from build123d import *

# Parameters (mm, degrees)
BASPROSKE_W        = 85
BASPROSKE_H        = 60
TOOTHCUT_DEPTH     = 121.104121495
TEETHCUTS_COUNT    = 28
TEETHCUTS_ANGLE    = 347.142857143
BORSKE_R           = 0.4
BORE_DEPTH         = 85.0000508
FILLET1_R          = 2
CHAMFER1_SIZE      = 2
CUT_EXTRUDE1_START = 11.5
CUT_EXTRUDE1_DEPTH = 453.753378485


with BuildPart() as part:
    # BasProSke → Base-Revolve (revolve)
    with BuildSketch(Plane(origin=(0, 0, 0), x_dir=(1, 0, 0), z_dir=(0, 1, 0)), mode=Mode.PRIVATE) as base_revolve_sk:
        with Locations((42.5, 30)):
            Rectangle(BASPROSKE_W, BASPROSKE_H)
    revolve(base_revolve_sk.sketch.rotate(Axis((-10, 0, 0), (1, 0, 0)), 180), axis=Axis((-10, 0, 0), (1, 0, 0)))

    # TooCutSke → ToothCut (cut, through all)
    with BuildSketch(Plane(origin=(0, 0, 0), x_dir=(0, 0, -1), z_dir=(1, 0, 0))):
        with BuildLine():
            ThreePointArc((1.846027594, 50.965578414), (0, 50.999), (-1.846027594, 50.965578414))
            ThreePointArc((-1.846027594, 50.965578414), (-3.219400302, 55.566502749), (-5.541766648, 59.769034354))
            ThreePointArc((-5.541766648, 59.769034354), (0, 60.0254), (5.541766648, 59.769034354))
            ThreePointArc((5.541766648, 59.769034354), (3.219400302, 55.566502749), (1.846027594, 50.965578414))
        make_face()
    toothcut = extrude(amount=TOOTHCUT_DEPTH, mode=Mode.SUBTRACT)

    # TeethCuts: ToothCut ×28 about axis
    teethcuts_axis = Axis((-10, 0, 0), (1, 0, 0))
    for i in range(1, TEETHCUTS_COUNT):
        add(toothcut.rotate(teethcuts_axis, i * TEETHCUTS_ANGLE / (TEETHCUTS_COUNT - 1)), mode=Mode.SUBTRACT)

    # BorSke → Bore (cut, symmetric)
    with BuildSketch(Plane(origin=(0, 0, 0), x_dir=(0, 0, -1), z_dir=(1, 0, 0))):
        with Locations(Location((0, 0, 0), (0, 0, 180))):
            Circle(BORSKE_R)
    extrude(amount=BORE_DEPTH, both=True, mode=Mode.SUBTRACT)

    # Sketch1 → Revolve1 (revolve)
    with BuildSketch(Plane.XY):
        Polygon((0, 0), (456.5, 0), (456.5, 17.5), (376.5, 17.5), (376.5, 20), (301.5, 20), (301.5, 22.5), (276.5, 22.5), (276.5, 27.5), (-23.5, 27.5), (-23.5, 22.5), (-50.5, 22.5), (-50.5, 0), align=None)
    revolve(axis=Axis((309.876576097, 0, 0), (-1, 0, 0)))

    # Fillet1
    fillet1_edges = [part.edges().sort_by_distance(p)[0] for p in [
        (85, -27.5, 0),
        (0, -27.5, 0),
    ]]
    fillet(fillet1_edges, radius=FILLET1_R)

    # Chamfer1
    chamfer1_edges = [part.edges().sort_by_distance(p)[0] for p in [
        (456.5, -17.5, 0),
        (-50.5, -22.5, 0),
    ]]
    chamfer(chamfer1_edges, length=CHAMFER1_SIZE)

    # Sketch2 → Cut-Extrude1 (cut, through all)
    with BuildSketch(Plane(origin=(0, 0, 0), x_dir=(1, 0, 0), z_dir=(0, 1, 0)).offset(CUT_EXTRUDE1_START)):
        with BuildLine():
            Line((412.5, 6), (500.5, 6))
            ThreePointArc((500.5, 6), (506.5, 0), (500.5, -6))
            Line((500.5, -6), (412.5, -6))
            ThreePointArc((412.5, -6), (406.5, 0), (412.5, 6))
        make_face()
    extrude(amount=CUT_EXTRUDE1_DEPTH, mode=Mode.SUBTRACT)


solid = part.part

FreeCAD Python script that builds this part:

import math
import FreeCAD as App
import Part
import Sketcher


def edges_at(feature, points):
    """Names of the edges that pass closest to the given points."""
    edges = feature.Shape.Edges
    near = lambda p: min(range(len(edges)), key=lambda i: edges[i].distToShape(Part.Vertex(*p))[0])
    return sorted({f"Edge{near(p) + 1}" for p in points})

doc = App.newDocument("Part")
body = doc.addObject("PartDesign::Body", "Body")

# Sketch on XZ plane
sketch1 = doc.addObject("Sketcher::SketchObject", "Sketch")
body.addObject(sketch1)
sketch1.AttachmentSupport = (doc.XZ_Plane, [""])
sketch1.MapMode = "FlatFace"
sketch1.addGeometry([
    Part.LineSegment(App.Vector(0, -60, 0), App.Vector(0, 0, 0)),
    Part.LineSegment(App.Vector(0, 0, 0), App.Vector(85, 0, 0)),
    Part.LineSegment(App.Vector(85, 0, 0), App.Vector(85, -60, 0)),
    Part.LineSegment(App.Vector(85, -60, 0), App.Vector(0, -60, 0)),
], False)
sketch1.addConstraint([
    Sketcher.Constraint("Coincident", 0, 2, 1, 1),
    Sketcher.Constraint("Coincident", 1, 2, 2, 1),
    Sketcher.Constraint("Coincident", 2, 2, 3, 1),
    Sketcher.Constraint("Coincident", 3, 2, 0, 1),
    Sketcher.Constraint("Vertical", 0),
    Sketcher.Constraint("Horizontal", 1),
    Sketcher.Constraint("Vertical", 2),
    Sketcher.Constraint("Horizontal", 3),
    Sketcher.Constraint("Coincident", 0, 2, -1, 1),
    Sketcher.Constraint("DistanceX", 1, 1, 1, 2, 85.0),
    Sketcher.Constraint("DistanceY", 0, 1, 0, 2, 60.0),
])
revolution = doc.addObject("PartDesign::Revolution", "Revolution")
body.addObject(revolution)
revolution.Profile = sketch1
revolution.ReferenceAxis = (sketch1, ["H_Axis"])
revolution.Angle = 360

# Sketch on YZ plane
sketch2 = doc.addObject("Sketcher::SketchObject", "Sketch001")
body.addObject(sketch2)
sketch2.AttachmentSupport = (doc.YZ_Plane, [""])
sketch2.MapMode = "FlatFace"
sketch2.addGeometry([
    Part.ArcOfCircle(Part.Circle(App.Vector(0.000001, 0, 0), App.Vector(0, 0, 1), 50.998999), math.radians(-2.074407), math.radians(2.074407)),
    Part.ArcOfCircle(Part.Circle(App.Vector(46.89591, -23.873234, 0), App.Vector(0, 0, 1), 22.4), math.radians(54.921862), math.radians(79.532276)),
    Part.ArcOfCircle(Part.Circle(App.Vector(0, 0, 0), App.Vector(0, 0, 1), 60.0254), math.radians(-5.297302), math.radians(5.297302)),
    Part.ArcOfCircle(Part.Circle(App.Vector(46.89591, 23.873234, 0), App.Vector(0, 0, 1), 22.4), math.radians(-79.532276), math.radians(-54.921862)),
], False)
sketch2.addConstraint([
    Sketcher.Constraint("Coincident", 0, 1, 1, 2),
    Sketcher.Constraint("Coincident", 1, 1, 2, 1),
    Sketcher.Constraint("Coincident", 2, 2, 3, 2),
    Sketcher.Constraint("Coincident", 3, 1, 0, 2),
    Sketcher.Constraint("Coincident", 0, 3, -1, 1),
    Sketcher.Constraint("Coincident", 2, 3, -1, 1),
    Sketcher.Constraint("Equal", 1, 3),
    Sketcher.Constraint("Symmetric", 1, 3, 3, 3, -1),
    Sketcher.Constraint("Radius", 1, 22.4),
    Sketcher.Constraint("Radius", 0, 50.998999),
    Sketcher.Constraint("Radius", 2, 60.0254),
    Sketcher.Constraint("DistanceY", 1, 1, 3, 3, 29.415),
    Sketcher.Constraint("DistanceX", -1, 1, 1, 3, 46.89591),
])
pocket1 = doc.addObject("PartDesign::Pocket", "Pocket")
body.addObject(pocket1)
pocket1.Profile = sketch2
pocket1.Type = "ThroughAll"
pocket1.Reversed = True
doc.recompute()

polarpattern = doc.addObject("PartDesign::PolarPattern", "PolarPattern")
body.addObject(polarpattern)
polarpattern.Originals = [pocket1]
polarpattern.Axis = (doc.X_Axis, [""])
polarpattern.Angle = 360
polarpattern.Occurrences = 28
body.Tip = polarpattern

# Sketch on YZ plane
sketch3 = doc.addObject("Sketcher::SketchObject", "Sketch002")
body.addObject(sketch3)
sketch3.AttachmentSupport = (doc.YZ_Plane, [""])
sketch3.MapMode = "FlatFace"
sketch3.addGeometry(Part.Circle(App.Vector(0, 0, 0), App.Vector(0, 0, 1), 0.4), False)
sketch3.addConstraint([
    Sketcher.Constraint("Coincident", 0, 3, -1, 1),
    Sketcher.Constraint("Diameter", 0, 0.8),
])
pocket2 = doc.addObject("PartDesign::Pocket", "Pocket001")
body.addObject(pocket2)
pocket2.Profile = sketch3
pocket2.Length = 170.000102
pocket2.Midplane = True

# Sketch on XY plane
sketch4 = doc.addObject("Sketcher::SketchObject", "Sketch003")
body.addObject(sketch4)
sketch4.AttachmentSupport = (doc.XY_Plane, [""])
sketch4.MapMode = "FlatFace"
sketch4.addGeometry([
    Part.LineSegment(App.Vector(456.5, 0, 0), App.Vector(456.5, 17.5, 0)),  # 0
    Part.LineSegment(App.Vector(456.5, 17.5, 0), App.Vector(376.5, 17.5, 0)),  # 1
    Part.LineSegment(App.Vector(376.5, 17.5, 0), App.Vector(376.5, 20, 0)),  # 2
    Part.LineSegment(App.Vector(376.5, 20, 0), App.Vector(301.5, 20, 0)),  # 3
    Part.LineSegment(App.Vector(301.5, 20, 0), App.Vector(301.5, 22.5, 0)),  # 4
    Part.LineSegment(App.Vector(301.5, 22.5, 0), App.Vector(276.5, 22.5, 0)),  # 5
    Part.LineSegment(App.Vector(276.5, 22.5, 0), App.Vector(276.5, 27.5, 0)),  # 6
    Part.LineSegment(App.Vector(276.5, 27.5, 0), App.Vector(-23.5, 27.5, 0)),  # 7
    Part.LineSegment(App.Vector(-23.5, 27.5, 0), App.Vector(-23.5, 22.5, 0)),  # 8
    Part.LineSegment(App.Vector(-23.5, 22.5, 0), App.Vector(-50.5, 22.5, 0)),  # 9
    Part.LineSegment(App.Vector(-50.5, 22.5, 0), App.Vector(-50.5, 0, 0)),  # 10
    Part.LineSegment(App.Vector(-50.5, 0, 0), App.Vector(456.5, 0, 0)),  # 11
], False)
sketch4.addConstraint([
    Sketcher.Constraint("Coincident", 0, 2, 1, 1),
    Sketcher.Constraint("Coincident", 1, 2, 2, 1),
    Sketcher.Constraint("Coincident", 2, 2, 3, 1),
    Sketcher.Constraint("Coincident", 3, 2, 4, 1),
    Sketcher.Constraint("Coincident", 4, 2, 5, 1),
    Sketcher.Constraint("Coincident", 5, 2, 6, 1),
    Sketcher.Constraint("Coincident", 6, 2, 7, 1),
    Sketcher.Constraint("Coincident", 7, 2, 8, 1),
    Sketcher.Constraint("Coincident", 8, 2, 9, 1),
    Sketcher.Constraint("Coincident", 9, 2, 10, 1),
    Sketcher.Constraint("Coincident", 10, 2, 11, 1),
    Sketcher.Constraint("Coincident", 11, 2, 0, 1),
    Sketcher.Constraint("Vertical", 0),
    Sketcher.Constraint("Horizontal", 1),
    Sketcher.Constraint("Vertical", 2),
    Sketcher.Constraint("Horizontal", 3),
    Sketcher.Constraint("Vertical", 4),
    Sketcher.Constraint("Horizontal", 5),
    Sketcher.Constraint("Vertical", 6),
    Sketcher.Constraint("Horizontal", 7),
    Sketcher.Constraint("Vertical", 8),
    Sketcher.Constraint("Horizontal", 9),
    Sketcher.Constraint("Vertical", 10),
    Sketcher.Constraint("Horizontal", 11),
    Sketcher.Constraint("PointOnObject", 10, 2, -1),
    Sketcher.Constraint("Horizontal", 5, 2, 8, 2),
    Sketcher.Constraint("Equal", 2, 4),
    Sketcher.Constraint("DistanceX", 1, 2, 1, 1, 80.0),
    Sketcher.Constraint("DistanceX", 3, 2, 3, 1, 75.0),
    Sketcher.Constraint("DistanceX", 5, 2, 5, 1, 25.0),
    Sketcher.Constraint("DistanceX", 7, 2, 7, 1, 300.0),
    Sketcher.Constraint("DistanceX", 9, 2, 9, 1, 27.0),
    Sketcher.Constraint("DistanceY", 6, 1, 6, 2, 5.0),
    Sketcher.Constraint("DistanceY", 0, 1, 0, 2, 17.5),
    Sketcher.Constraint("DistanceY", 2, 1, 2, 2, 2.5),
    Sketcher.Constraint("DistanceX", -1, 1, 0, 2, 456.5),
])
revolution2 = doc.addObject("PartDesign::Revolution", "Revolution001")
body.addObject(revolution2)
revolution2.Profile = sketch4
revolution2.ReferenceAxis = (sketch4, ["H_Axis"])
revolution2.Angle = 360
doc.recompute()

fillet = doc.addObject("PartDesign::Fillet", "Fillet")
body.addObject(fillet)
fillet.Base = (revolution2, edges_at(revolution2, [(85, -27.5, 0), (0, -27.5, 0)]))
fillet.Radius = 2
doc.recompute()

chamfer = doc.addObject("PartDesign::Chamfer", "Chamfer")
body.addObject(chamfer)
chamfer.Base = (fillet, edges_at(fillet, [(456.5, -17.5, 0), (-50.5, -22.5, 0)]))
chamfer.Size = 2

# Sketch on XZ plane
sketch5 = doc.addObject("Sketcher::SketchObject", "Sketch004")
body.addObject(sketch5)
sketch5.AttachmentSupport = (doc.XZ_Plane, [""])
sketch5.MapMode = "FlatFace"
sketch5.AttachmentOffset = App.Placement(App.Vector(0, 0, -11.5), App.Rotation())
sketch5.addGeometry([
    Part.LineSegment(App.Vector(500.5, -6, 0), App.Vector(412.5, -6, 0)),
    Part.ArcOfCircle(Part.Circle(App.Vector(412.5, 0, 0), App.Vector(0, 0, 1), 6), math.radians(90), math.radians(270)),
    Part.LineSegment(App.Vector(412.5, 6, 0), App.Vector(500.5, 6, 0)),
    Part.ArcOfCircle(Part.Circle(App.Vector(500.5, 0, 0), App.Vector(0, 0, 1), 6), math.radians(-90), math.radians(90)),
], False)
sketch5.addConstraint([
    Sketcher.Constraint("Tangent", 0, 2, 1, 2),
    Sketcher.Constraint("Tangent", 1, 1, 2, 1),
    Sketcher.Constraint("Tangent", 2, 2, 3, 2),
    Sketcher.Constraint("Tangent", 3, 1, 0, 1),
    Sketcher.Constraint("Horizontal", 0),
    Sketcher.Constraint("Horizontal", 2),
    Sketcher.Constraint("PointOnObject", 1, 3, -1),
    Sketcher.Constraint("Radius", 1, 6.0),
    Sketcher.Constraint("DistanceX", 0, 2, 0, 1, 88.0),
    Sketcher.Constraint("DistanceX", -1, 1, 1, 3, 412.5),
])
pocket3 = doc.addObject("PartDesign::Pocket", "Pocket002")
body.addObject(pocket3)
pocket3.Profile = sketch5
pocket3.Type = "ThroughAll"

doc.recompute()
